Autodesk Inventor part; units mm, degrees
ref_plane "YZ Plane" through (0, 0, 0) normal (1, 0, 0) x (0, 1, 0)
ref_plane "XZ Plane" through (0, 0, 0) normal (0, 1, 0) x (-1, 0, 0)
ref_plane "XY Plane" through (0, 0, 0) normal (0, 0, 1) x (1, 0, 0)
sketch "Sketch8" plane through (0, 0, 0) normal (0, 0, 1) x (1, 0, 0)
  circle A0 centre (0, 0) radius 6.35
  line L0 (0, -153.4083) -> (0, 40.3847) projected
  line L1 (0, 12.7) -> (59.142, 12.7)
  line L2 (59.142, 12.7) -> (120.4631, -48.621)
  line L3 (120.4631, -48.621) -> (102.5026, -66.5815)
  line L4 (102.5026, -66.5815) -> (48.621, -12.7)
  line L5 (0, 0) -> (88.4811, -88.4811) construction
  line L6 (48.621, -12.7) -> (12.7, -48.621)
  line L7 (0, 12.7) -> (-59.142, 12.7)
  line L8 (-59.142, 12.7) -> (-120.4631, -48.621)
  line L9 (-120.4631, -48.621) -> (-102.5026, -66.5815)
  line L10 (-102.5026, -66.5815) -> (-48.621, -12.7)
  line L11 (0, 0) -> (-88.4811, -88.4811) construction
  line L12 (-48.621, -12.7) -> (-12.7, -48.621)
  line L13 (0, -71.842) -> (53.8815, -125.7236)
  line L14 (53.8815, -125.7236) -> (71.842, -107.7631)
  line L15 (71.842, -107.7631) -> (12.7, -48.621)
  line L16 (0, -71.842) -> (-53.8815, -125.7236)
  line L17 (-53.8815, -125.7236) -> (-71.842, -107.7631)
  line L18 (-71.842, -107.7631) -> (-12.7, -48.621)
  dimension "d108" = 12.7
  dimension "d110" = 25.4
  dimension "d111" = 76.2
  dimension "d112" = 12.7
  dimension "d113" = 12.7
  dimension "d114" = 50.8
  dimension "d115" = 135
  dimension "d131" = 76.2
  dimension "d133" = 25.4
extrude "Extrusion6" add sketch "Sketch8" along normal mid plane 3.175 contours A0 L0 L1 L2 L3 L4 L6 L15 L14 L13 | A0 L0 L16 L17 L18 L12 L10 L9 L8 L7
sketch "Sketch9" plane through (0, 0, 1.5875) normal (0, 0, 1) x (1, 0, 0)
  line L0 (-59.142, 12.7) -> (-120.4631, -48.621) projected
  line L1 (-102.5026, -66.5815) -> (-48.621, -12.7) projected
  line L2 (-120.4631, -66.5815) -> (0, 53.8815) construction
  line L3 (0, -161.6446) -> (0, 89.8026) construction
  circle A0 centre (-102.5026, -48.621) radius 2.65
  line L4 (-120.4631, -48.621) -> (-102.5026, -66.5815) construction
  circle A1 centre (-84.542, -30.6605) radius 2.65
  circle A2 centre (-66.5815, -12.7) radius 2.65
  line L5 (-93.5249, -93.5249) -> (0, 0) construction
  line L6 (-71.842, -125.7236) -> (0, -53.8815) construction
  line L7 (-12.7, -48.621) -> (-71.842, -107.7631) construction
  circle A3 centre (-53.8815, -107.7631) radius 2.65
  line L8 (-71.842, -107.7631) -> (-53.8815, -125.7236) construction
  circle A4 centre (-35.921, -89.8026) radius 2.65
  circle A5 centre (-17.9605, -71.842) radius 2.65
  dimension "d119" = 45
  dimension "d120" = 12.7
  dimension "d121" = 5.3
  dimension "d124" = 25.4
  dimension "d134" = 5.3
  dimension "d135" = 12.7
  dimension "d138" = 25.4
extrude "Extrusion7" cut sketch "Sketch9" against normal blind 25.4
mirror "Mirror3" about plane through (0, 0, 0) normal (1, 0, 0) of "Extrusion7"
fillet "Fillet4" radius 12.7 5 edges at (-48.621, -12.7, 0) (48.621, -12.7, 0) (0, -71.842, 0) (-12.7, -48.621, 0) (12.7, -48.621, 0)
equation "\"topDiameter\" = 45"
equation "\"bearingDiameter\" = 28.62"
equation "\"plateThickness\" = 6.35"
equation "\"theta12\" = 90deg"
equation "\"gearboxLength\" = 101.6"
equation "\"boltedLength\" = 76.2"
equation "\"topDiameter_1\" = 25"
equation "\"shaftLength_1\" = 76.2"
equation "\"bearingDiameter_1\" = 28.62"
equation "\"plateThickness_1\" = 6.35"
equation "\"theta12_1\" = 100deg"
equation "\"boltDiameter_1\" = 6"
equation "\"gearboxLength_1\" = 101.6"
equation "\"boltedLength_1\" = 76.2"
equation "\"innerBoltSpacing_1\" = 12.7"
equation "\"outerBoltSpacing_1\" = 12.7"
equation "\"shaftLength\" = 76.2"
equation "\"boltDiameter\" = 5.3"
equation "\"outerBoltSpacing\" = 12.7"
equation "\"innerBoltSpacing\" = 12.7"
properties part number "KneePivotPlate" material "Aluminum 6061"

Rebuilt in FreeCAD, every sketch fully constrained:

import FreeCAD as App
import Part
import Sketcher

V = App.Vector
Q = App.Units.Quantity


def edges_at(feature, points):
    """Names of the edges that pass closest to the given points."""
    edges = feature.Shape.Edges
    near = lambda p: min(range(len(edges)), key=lambda i: edges[i].distToShape(Part.Vertex(*p))[0])
    return sorted({f"Edge{near(p) + 1}" for p in points})


def add_polygon(sketch, points):
    """Adds a closed chain of lines whose ends are joined by coincident constraints."""
    first, n = sketch.GeometryCount, len(points)
    for a, b in zip(points, points[1:] + points[:1]):
        sketch.addGeometry(Part.LineSegment(App.Vector(*a, 0), App.Vector(*b, 0)), False)
    for i in range(n):
        sketch.addConstraint(Sketcher.Constraint("Coincident", first + i, 2, first + (i + 1) % n, 1))

doc = App.newDocument("Part")
params = doc.addObject("Spreadsheet::Sheet", "Params")
for row, (alias, value) in enumerate([
    ("sketch1_diameter", "0.5 in"),
    ("sketch1_length", "1 in"),
    ("sketch1_length2", "3 in"),
    ("pad1_length", "0.125 in"),
    ("pocket1_length", "1 in"),
    ("fillet_radius", "0.5 in"),
], start=1):
    params.set(f"A{row}", alias)
    params.set(f"B{row}", "=" + value)
    params.setAlias(f"B{row}", alias)

body = doc.addObject("PartDesign::Body", "Body")

# Sketch on XY plane
sketch1 = body.newObject("Sketcher::SketchObject", "Sketch")
sketch1.AttachmentSupport = (doc.getObject("XY_Plane"), [""])
sketch1.MapMode = "FlatFace"
add_polygon(sketch1, [(59, 13), (-59, 13), (-120, -49), (-103, -67), (-49, -13), (-13, -49), (-72, -108), (-54, -126), (0, -72), (54, -126), (72, -108), (13, -49), (49, -13), (103, -67), (120, -49)])  # lines 0-14
sketch1.addGeometry(Part.Circle(V(0, 0, 0), V(0, 0, 1), 6), False)  # 15
sketch1.addConstraint(Sketcher.Constraint("Horizontal", 0))
sketch1.addConstraint(Sketcher.Constraint("Coincident", 15, 3, -1, 1))
sketch1.addConstraint(Sketcher.Constraint("Symmetric", 6, 2, 8, 2, -2))
sketch1.addConstraint(Sketcher.Constraint("Symmetric", 5, 2, 9, 2, -2))
sketch1.addConstraint(Sketcher.Constraint("Symmetric", 4, 2, 10, 2, -2))
sketch1.addConstraint(Sketcher.Constraint("Symmetric", 3, 2, 11, 2, -2))
sketch1.addConstraint(Sketcher.Constraint("Symmetric", 2, 2, 12, 2, -2))
sketch1.addConstraint(Sketcher.Constraint("Symmetric", 1, 2, 13, 2, -2))
sketch1.addConstraint(Sketcher.Constraint("PointOnObject", 7, 2, -2))
sketch1.addConstraint(Sketcher.Constraint("Perpendicular", 1, 2))
sketch1.addConstraint(Sketcher.Constraint("Perpendicular", 2, 3))
sketch1.addConstraint(Sketcher.Constraint("Perpendicular", 3, 4))
sketch1.addConstraint(Sketcher.Constraint("Perpendicular", 4, 5))
sketch1.addConstraint(Sketcher.Constraint("Perpendicular", 5, 6))
sketch1.addConstraint(Sketcher.Constraint("Perpendicular", 6, 7))
sketch1.addConstraint(Sketcher.Constraint("Perpendicular", 7, 8))
sketch1.addConstraint(Sketcher.Constraint("Perpendicular", 13, 14))
sketch1.addConstraint(Sketcher.Constraint("Horizontal", 1, 2, 4, 2))
sketch1.addConstraint(Sketcher.Constraint("Equal", 2, 6))
sketch1.addConstraint(Sketcher.Constraint("Equal", 3, 7))
sketch1.addConstraint(Sketcher.Constraint("Diameter", 15, Q("0.5 in")))
sketch1.addConstraint(Sketcher.Constraint("Distance", 2, Q("1 in")))
sketch1.addConstraint(Sketcher.Constraint("Distance", 3, Q("3 in")))
sketch1.addConstraint(Sketcher.Constraint("DistanceY", 3, 2, 0, 2, Q("1 in")))
sketch1.addConstraint(Sketcher.Constraint("DistanceX", 4, 2, 10, 2, Q("1 in")))
sketch1.addConstraint(Sketcher.Constraint("DistanceY", -1, 1, 0, 2, Q("0.5 in")))
sketch1.setExpression("Constraints[35]", "Params.sketch1_diameter")
sketch1.setExpression("Constraints[36]", "Params.sketch1_length")
sketch1.setExpression("Constraints[37]", "Params.sketch1_length2")
pad1 = body.newObject("PartDesign::Pad", "Pad")
pad1.Profile = sketch1
pad1.setExpression("Length", "Params.pad1_length")
pad1.Midplane = True

# Sketch on XY plane
sketch2 = body.newObject("Sketcher::SketchObject", "Sketch001")
sketch2.AttachmentSupport = (doc.getObject("XY_Plane"), [""])
sketch2.MapMode = "FlatFace"
sketch2.AttachmentOffset = App.Placement(V(0, 0, 0.0625 * 25.4), App.Rotation())
sketch2.addGeometry(Part.Circle(V(-102.5, -48.6, 0), V(0, 0, 1), 2.6), False)
sketch2.addGeometry(Part.Circle(V(-84.5, -30.7, 0), V(0, 0, 1), 2.6), False)
sketch2.addGeometry(Part.Circle(V(-66.6, -12.7, 0), V(0, 0, 1), 2.6), False)
sketch2.addGeometry(Part.Circle(V(-53.9, -107.8, 0), V(0, 0, 1), 2.6), False)
sketch2.addGeometry(Part.Circle(V(-35.9, -89.8, 0), V(0, 0, 1), 2.6), False)
sketch2.addGeometry(Part.Circle(V(-18, -71.8, 0), V(0, 0, 1), 2.6), False)
sketch2.addConstraint(Sketcher.Constraint("Equal", 0, 1))
sketch2.addConstraint(Sketcher.Constraint("Equal", 1, 2))
sketch2.addConstraint(Sketcher.Constraint("Equal", 2, 3))
sketch2.addConstraint(Sketcher.Constraint("Equal", 3, 4))
sketch2.addConstraint(Sketcher.Constraint("Equal", 4, 5))
sketch2.addConstraint(Sketcher.Constraint("DistanceY", 2, 3, -1, 1, Q("0.5 in")))
sketch2.addConstraint(Sketcher.Constraint("DistanceX", 2, 3, 3, 3, Q("0.5 in")))
sketch2.addConstraint(Sketcher.Constraint("Diameter", 0, Q("5.3 mm")))
sketch2.addConstraint(Sketcher.Constraint("DistanceY", 1, 3, -1, 1, Q("1.2071 in")))
sketch2.addConstraint(Sketcher.Constraint("DistanceX", 5, 3, -1, 1, Q("0.7071 in")))
sketch2.addConstraint(Sketcher.Constraint("DistanceX", 0, 3, 1, 3, Q("0.7071 in")))
sketch2.addConstraint(Sketcher.Constraint("DistanceY", 0, 3, 1, 3, Q("0.7071 in")))
sketch2.addConstraint(Sketcher.Constraint("DistanceX", 1, 3, 2, 3, Q("0.7071 in")))
sketch2.addConstraint(Sketcher.Constraint("DistanceX", 3, 3, 4, 3, Q("0.7071 in")))
sketch2.addConstraint(Sketcher.Constraint("DistanceY", 3, 3, 4, 3, Q("0.7071 in")))
sketch2.addConstraint(Sketcher.Constraint("DistanceX", 4, 3, 5, 3, Q("0.7071 in")))
sketch2.addConstraint(Sketcher.Constraint("DistanceY", 4, 3, 5, 3, Q("0.7071 in")))
sketch2.addConstraint(Sketcher.Constraint("DistanceY", 3, 3, -1, 1, Q("107.763 mm")))
pocket1 = body.newObject("PartDesign::Pocket", "Pocket")
pocket1.Profile = sketch2
pocket1.setExpression("Length", "Params.pocket1_length")
doc.recompute()

mirrored = body.newObject("PartDesign::Mirrored", "Mirrored")
mirrored.Originals = [pocket1]
mirrored.MirrorPlane = (doc.getObject("YZ_Plane"), [""])
body.Tip = mirrored
doc.recompute()

fillet = body.newObject("PartDesign::Fillet", "Fillet")
fillet.Base = (mirrored, edges_at(mirrored, [
    (-48.621, -12.7, 0),
    (48.621, -12.7, 0),
    (0, -71.842, 0),
    (-12.7, -48.621, 0),
    (12.7, -48.621, 0),
]))
fillet.setExpression("Radius", "Params.fillet_radius")

doc.recompute()
